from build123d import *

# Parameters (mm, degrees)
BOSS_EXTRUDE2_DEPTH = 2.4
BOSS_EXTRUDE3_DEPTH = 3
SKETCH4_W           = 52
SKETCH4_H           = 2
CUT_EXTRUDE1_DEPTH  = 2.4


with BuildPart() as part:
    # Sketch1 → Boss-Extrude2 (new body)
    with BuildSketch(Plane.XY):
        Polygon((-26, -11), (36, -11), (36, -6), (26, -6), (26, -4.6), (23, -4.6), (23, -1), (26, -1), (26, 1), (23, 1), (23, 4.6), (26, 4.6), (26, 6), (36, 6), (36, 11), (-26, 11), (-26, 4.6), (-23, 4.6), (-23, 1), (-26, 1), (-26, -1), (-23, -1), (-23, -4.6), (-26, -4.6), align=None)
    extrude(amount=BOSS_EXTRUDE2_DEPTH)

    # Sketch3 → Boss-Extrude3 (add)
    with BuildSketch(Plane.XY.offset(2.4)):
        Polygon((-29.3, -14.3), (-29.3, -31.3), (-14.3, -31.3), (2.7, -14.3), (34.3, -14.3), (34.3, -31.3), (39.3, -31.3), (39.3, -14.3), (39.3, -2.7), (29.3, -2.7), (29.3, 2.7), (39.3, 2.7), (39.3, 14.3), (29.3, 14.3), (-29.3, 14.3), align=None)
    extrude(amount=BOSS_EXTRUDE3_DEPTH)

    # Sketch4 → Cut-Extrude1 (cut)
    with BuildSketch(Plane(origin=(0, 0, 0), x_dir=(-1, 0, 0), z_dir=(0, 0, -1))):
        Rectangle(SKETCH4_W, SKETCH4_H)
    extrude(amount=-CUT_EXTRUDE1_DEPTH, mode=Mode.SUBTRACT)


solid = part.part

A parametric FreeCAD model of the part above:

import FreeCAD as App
import Part
import Sketcher
Q = App.Units.Quantity


def add_polygon(sketch, points):
    """Adds a closed chain of lines whose ends are joined by coincident constraints."""
    first, n = sketch.GeometryCount, len(points)
    for a, b in zip(points, points[1:] + points[:1]):
        sketch.addGeometry(Part.LineSegment(App.Vector(*a, 0), App.Vector(*b, 0)), False)
    for i in range(n):
        sketch.addConstraint(Sketcher.Constraint("Coincident", first + i, 2, first + (i + 1) % n, 1))

doc = App.newDocument("Part")
body = doc.addObject("PartDesign::Body", "Body")

sketch1 = body.newObject("Sketcher::SketchObject", "Sketch")
sketch1.AttachmentSupport = (doc.getObject("XY_Plane"), [""])
sketch1.MapMode = "FlatFace"
add_polygon(sketch1, [(-26, -11), (36, -11), (36, -6), (26, -6), (26, -4.6), (23, -4.6), (23, -1), (26, -1), (26, 1), (23, 1), (23, 4.6), (26, 4.6), (26, 6), (36, 6), (36, 11), (-26, 11), (-26, 4.6), (-23, 4.6), (-23, 1), (-26, 1), (-26, -1), (-23, -1), (-23, -4.6), (-26, -4.6)])
sketch1.addConstraint([
    Sketcher.Constraint("Horizontal", 0),
    Sketcher.Constraint("Vertical", 1),
    Sketcher.Constraint("Horizontal", 2),
    Sketcher.Constraint("Vertical", 3),
    Sketcher.Constraint("Horizontal", 4),
    Sketcher.Constraint("Vertical", 5),
    Sketcher.Constraint("Horizontal", 6),
    Sketcher.Constraint("Vertical", 7),
    Sketcher.Constraint("Horizontal", 8),
    Sketcher.Constraint("Vertical", 9),
    Sketcher.Constraint("Horizontal", 10),
    Sketcher.Constraint("Vertical", 11),
    Sketcher.Constraint("Horizontal", 12),
    Sketcher.Constraint("Vertical", 13),
    Sketcher.Constraint("Horizontal", 14),
    Sketcher.Constraint("Vertical", 15),
    Sketcher.Constraint("Horizontal", 16),
    Sketcher.Constraint("Vertical", 17),
    Sketcher.Constraint("Horizontal", 18),
    Sketcher.Constraint("Vertical", 19),
    Sketcher.Constraint("Horizontal", 20),
    Sketcher.Constraint("Vertical", 21),
    Sketcher.Constraint("Horizontal", 22),
    Sketcher.Constraint("Vertical", 23),
    Sketcher.Constraint("Symmetric", 3, 2, 15, 2, -1, 1),
    Sketcher.Constraint("Symmetric", 5, 2, 17, 2, -1, 1),
    Sketcher.Constraint("Symmetric", 7, 2, 19, 2, -1, 1),
    Sketcher.Constraint("Symmetric", 9, 2, 21, 2, -1, 1),
    Sketcher.Constraint("Symmetric", 10, 2, 15, 2, -2),
    Sketcher.Constraint("Symmetric", 8, 2, 17, 2, -2),
    Sketcher.Constraint("Symmetric", 1, 2, 12, 2, -1),
    Sketcher.Constraint("Symmetric", 14, 2, 23, 2, -1),
    Sketcher.Constraint("Vertical", 3, 2, 6, 2),
    Sketcher.Constraint("DistanceX", 0, 1, 0, 2, Q("62 mm")),
    Sketcher.Constraint("DistanceX", 2, 2, 2, 1, Q("10 mm")),
    Sketcher.Constraint("DistanceX", 4, 2, 4, 1, Q("3 mm")),
    Sketcher.Constraint("DistanceY", 1, 1, 1, 2, Q("5 mm")),
    Sketcher.Constraint("DistanceY", 7, 1, 7, 2, Q("2 mm")),
    Sketcher.Constraint("DistanceY", 3, 1, 3, 2, Q("1.4 mm")),
    Sketcher.Constraint("DistanceY", 5, 1, 5, 2, Q("3.6 mm")),
])
pad1 = body.newObject("PartDesign::Pad", "Pad")
pad1.Profile = sketch1
pad1.Length = 2.4

sketch2 = body.newObject("Sketcher::SketchObject", "Sketch001")
sketch2.AttachmentSupport = (doc.getObject("XY_Plane"), [""])
sketch2.MapMode = "FlatFace"
sketch2.AttachmentOffset = App.Placement(App.Vector(0, 0, 2.4), App.Rotation())
add_polygon(sketch2, [(-29, -31), (-14, -31), (3, -14), (34, -14), (34, -31), (39, -31), (39, -3), (29, -3), (29, 3), (39, 3), (39, 14), (-29, 14)])
sketch2.addConstraint([
    Sketcher.Constraint("Horizontal", 0),
    Sketcher.Constraint("Horizontal", 2),
    Sketcher.Constraint("Vertical", 3),
    Sketcher.Constraint("Horizontal", 4),
    Sketcher.Constraint("Vertical", 5),
    Sketcher.Constraint("Horizontal", 6),
    Sketcher.Constraint("Vertical", 7),
    Sketcher.Constraint("Horizontal", 8),
    Sketcher.Constraint("Vertical", 9),
    Sketcher.Constraint("Horizontal", 10),
    Sketcher.Constraint("Vertical", 11),
    Sketcher.Constraint("Symmetric", 5, 2, 8, 2, -1),
    Sketcher.Constraint("Horizontal", 0, 2, 3, 2),
    Sketcher.Constraint("DistanceX", 0, 1, 0, 2, Q("15 mm")),
    Sketcher.Constraint("DistanceX", 4, 1, 4, 2, Q("5 mm")),
    Sketcher.Constraint("DistanceX", 6, 2, 6, 1, Q("10 mm")),
    Sketcher.Constraint("DistanceY", 3, 2, 3, 1, Q("17 mm")),
    Sketcher.Constraint("Angle", 1, Q("45 deg")),
    Sketcher.Constraint("DistanceX", 2, 1, 2, 2, Q("31.6 mm")),
    Sketcher.Constraint("DistanceY", 5, 1, 5, 2, Q("28.6 mm")),
    Sketcher.Constraint("DistanceY", 7, 1, 7, 2, Q("5.4 mm")),
    Sketcher.Constraint("DistanceY", 9, 1, 9, 2, Q("11.6 mm")),
    Sketcher.Constraint("DistanceX", 0, 2, -1, 1, Q("14.3 mm")),
])
pad2 = body.newObject("PartDesign::Pad", "Pad001")
pad2.Profile = sketch2
pad2.Length = 3

sketch3 = body.newObject("Sketcher::SketchObject", "Sketch002")
sketch3.AttachmentSupport = (doc.getObject("XY_Plane"), [""])
sketch3.MapMode = "FlatFace"
add_polygon(sketch3, [(26, 1), (26, -1), (-26, -1), (-26, 1)])
sketch3.addConstraint([
    Sketcher.Constraint("Vertical", 0),
    Sketcher.Constraint("Horizontal", 1),
    Sketcher.Constraint("Vertical", 2),
    Sketcher.Constraint("Horizontal", 3),
    Sketcher.Constraint("Symmetric", 0, 2, 2, 2, -1, 1),
    Sketcher.Constraint("DistanceX", 1, 2, 1, 1, Q("52 mm")),
    Sketcher.Constraint("DistanceY", 0, 2, 0, 1, Q("2 mm")),
])
pocket1 = body.newObject("PartDesign::Pocket", "Pocket")
pocket1.Profile = sketch3
pocket1.Length = 2.4
pocket1.Reversed = True

doc.recompute()
